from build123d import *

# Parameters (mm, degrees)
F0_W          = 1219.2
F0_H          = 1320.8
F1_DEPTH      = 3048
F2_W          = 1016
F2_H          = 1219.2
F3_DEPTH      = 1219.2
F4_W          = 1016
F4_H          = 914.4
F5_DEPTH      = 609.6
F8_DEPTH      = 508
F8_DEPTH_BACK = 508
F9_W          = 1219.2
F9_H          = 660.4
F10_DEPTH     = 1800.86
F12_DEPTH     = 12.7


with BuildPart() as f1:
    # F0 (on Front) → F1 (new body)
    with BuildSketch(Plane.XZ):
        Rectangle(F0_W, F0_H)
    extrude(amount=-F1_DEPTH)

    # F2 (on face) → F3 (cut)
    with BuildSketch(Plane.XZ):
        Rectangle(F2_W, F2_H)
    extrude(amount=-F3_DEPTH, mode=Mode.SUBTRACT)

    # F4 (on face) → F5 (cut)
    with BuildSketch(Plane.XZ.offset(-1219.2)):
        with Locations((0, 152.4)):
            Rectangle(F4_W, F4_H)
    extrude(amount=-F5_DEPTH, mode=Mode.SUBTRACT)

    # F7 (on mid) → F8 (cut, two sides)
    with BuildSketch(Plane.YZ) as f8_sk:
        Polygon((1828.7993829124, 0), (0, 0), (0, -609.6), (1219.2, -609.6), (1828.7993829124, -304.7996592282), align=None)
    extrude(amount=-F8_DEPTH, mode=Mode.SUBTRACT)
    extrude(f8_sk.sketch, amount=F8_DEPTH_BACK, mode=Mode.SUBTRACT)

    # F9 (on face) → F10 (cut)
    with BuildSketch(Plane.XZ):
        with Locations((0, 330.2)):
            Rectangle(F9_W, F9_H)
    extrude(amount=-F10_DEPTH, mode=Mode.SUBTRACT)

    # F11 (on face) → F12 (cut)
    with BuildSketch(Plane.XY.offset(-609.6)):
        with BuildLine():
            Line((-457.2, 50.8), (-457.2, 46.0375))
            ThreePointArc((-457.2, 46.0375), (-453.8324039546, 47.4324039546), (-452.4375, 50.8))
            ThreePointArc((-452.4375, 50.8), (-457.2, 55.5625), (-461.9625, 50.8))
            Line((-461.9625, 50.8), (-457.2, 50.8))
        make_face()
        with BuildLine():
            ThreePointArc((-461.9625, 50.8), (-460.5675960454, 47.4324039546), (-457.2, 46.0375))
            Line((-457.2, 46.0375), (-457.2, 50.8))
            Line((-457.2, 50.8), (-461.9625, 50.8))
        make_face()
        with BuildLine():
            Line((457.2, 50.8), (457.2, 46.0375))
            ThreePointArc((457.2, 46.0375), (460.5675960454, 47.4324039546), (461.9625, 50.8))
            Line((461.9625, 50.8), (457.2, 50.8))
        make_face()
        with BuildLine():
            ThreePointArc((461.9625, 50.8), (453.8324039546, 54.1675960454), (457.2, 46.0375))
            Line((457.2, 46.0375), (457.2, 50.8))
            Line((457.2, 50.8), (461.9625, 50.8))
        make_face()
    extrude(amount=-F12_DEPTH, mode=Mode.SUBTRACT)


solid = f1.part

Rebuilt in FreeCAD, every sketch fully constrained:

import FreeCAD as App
import Part
import Sketcher
Q = App.Units.Quantity


def add_polygon(sketch, points):
    """Adds a closed chain of lines whose ends are joined by coincident constraints."""
    first, n = sketch.GeometryCount, len(points)
    for a, b in zip(points, points[1:] + points[:1]):
        sketch.addGeometry(Part.LineSegment(App.Vector(*a, 0), App.Vector(*b, 0)), False)
    for i in range(n):
        sketch.addConstraint(Sketcher.Constraint("Coincident", first + i, 2, first + (i + 1) % n, 1))

doc = App.newDocument("Part")
body = doc.addObject("PartDesign::Body", "Body")

# Sketch on XZ plane
sketch1 = doc.addObject("Sketcher::SketchObject", "Sketch")
body.addObject(sketch1)
sketch1.AttachmentSupport = (doc.XZ_Plane, [""])
sketch1.MapMode = "FlatFace"
add_polygon(sketch1, [(-610, 660), (-610, -660), (610, -660), (610, 660)])  # lines 0-3
sketch1.addConstraint([
    Sketcher.Constraint("Vertical", 0),
    Sketcher.Constraint("Horizontal", 1),
    Sketcher.Constraint("Vertical", 2),
    Sketcher.Constraint("Horizontal", 3),
    Sketcher.Constraint("Symmetric", 0, 2, 2, 2, -1, 1),
    Sketcher.Constraint("DistanceX", 1, 1, 1, 2, Q("48 in")),
    Sketcher.Constraint("DistanceY", 0, 2, 0, 1, Q("52 in")),
])
pad1 = doc.addObject("PartDesign::Pad", "Pad")
body.addObject(pad1)
pad1.Profile = sketch1
pad1.Length = Q("120 in")
pad1.Reversed = True

# Sketch on XZ plane
sketch2 = doc.addObject("Sketcher::SketchObject", "Sketch001")
body.addObject(sketch2)
sketch2.AttachmentSupport = (doc.XZ_Plane, [""])
sketch2.MapMode = "FlatFace"
add_polygon(sketch2, [(-508, 610), (-508, -610), (508, -610), (508, 610)])  # lines 0-3
sketch2.addConstraint([
    Sketcher.Constraint("Vertical", 0),
    Sketcher.Constraint("Horizontal", 1),
    Sketcher.Constraint("Vertical", 2),
    Sketcher.Constraint("Horizontal", 3),
    Sketcher.Constraint("Symmetric", 0, 2, 2, 2, -1, 1),
    Sketcher.Constraint("DistanceX", 1, 1, 1, 2, Q("40 in")),
    Sketcher.Constraint("DistanceY", 0, 2, 0, 1, Q("48 in")),
])
pocket1 = doc.addObject("PartDesign::Pocket", "Pocket")
body.addObject(pocket1)
pocket1.Profile = sketch2
pocket1.Length = Q("48 in")

# Sketch on XZ plane
sketch3 = doc.addObject("Sketcher::SketchObject", "Sketch002")
body.addObject(sketch3)
sketch3.AttachmentSupport = (doc.XZ_Plane, [""])
sketch3.MapMode = "FlatFace"
sketch3.AttachmentOffset = App.Placement(App.Vector(0, 0, -48 * 25.4), App.Rotation())
add_polygon(sketch3, [(-508, 610), (-508, -305), (508, -305), (508, 610)])  # lines 0-3
sketch3.addConstraint([
    Sketcher.Constraint("Vertical", 0),
    Sketcher.Constraint("Horizontal", 1),
    Sketcher.Constraint("Vertical", 2),
    Sketcher.Constraint("Horizontal", 3),
    Sketcher.Constraint("DistanceX", 1, 1, 1, 2, Q("40 in")),
    Sketcher.Constraint("DistanceY", 0, 2, 0, 1, Q("36 in")),
    Sketcher.Constraint("DistanceX", 0, 2, -1, 1, Q("20 in")),
    Sketcher.Constraint("DistanceY", 0, 2, -1, 1, Q("12 in")),
])
pocket2 = doc.addObject("PartDesign::Pocket", "Pocket001")
body.addObject(pocket2)
pocket2.Profile = sketch3
pocket2.Length = Q("24 in")

# Sketch on YZ plane
sketch4 = doc.addObject("Sketcher::SketchObject", "Sketch003")
body.addObject(sketch4)
sketch4.AttachmentSupport = (doc.YZ_Plane, [""])
sketch4.MapMode = "FlatFace"
add_polygon(sketch4, [(1829, 0), (0, 0), (0, -610), (1219, -610), (1829, -305)])  # lines 0-4
sketch4.addConstraint([
    Sketcher.Constraint("Horizontal", 0),
    Sketcher.Constraint("Vertical", 1),
    Sketcher.Constraint("Horizontal", 2),
    Sketcher.Constraint("Vertical", 4),
    Sketcher.Constraint("Coincident", 0, 2, -1, 1),
    Sketcher.Constraint("DistanceX", 2, 1, 2, 2, Q("48 in")),
    Sketcher.Constraint("DistanceY", 1, 2, 1, 1, Q("24 in")),
    Sketcher.Constraint("Distance", 3, Q("26.8328 in")),
    Sketcher.Constraint("DistanceY", 4, 1, 4, 2, Q("304.799659 mm")),
])
pocket3 = doc.addObject("PartDesign::Pocket", "Pocket002")
body.addObject(pocket3)
pocket3.Profile = sketch4
pocket3.Type = "TwoLengths"
pocket3.Length = Q("20 in")
pocket3.Length2 = Q("20 in")

# Sketch on XZ plane
sketch5 = doc.addObject("Sketcher::SketchObject", "Sketch004")
body.addObject(sketch5)
sketch5.AttachmentSupport = (doc.XZ_Plane, [""])
sketch5.MapMode = "FlatFace"
add_polygon(sketch5, [(-610, 660), (-610, 0), (610, 0), (610, 660)])  # lines 0-3
sketch5.addConstraint([
    Sketcher.Constraint("Vertical", 0),
    Sketcher.Constraint("Horizontal", 1),
    Sketcher.Constraint("Vertical", 2),
    Sketcher.Constraint("Horizontal", 3),
    Sketcher.Constraint("Symmetric", 0, 2, 1, 2, -1, 1),
    Sketcher.Constraint("DistanceX", 1, 1, 1, 2, Q("48 in")),
    Sketcher.Constraint("DistanceY", 0, 2, 0, 1, Q("26 in")),
])
pocket4 = doc.addObject("PartDesign::Pocket", "Pocket003")
body.addObject(pocket4)
pocket4.Profile = sketch5
pocket4.Length = Q("70.9 in")

# Sketch on XY plane
sketch6 = doc.addObject("Sketcher::SketchObject", "Sketch005")
body.addObject(sketch6)
sketch6.AttachmentSupport = (doc.XY_Plane, [""])
sketch6.MapMode = "FlatFace"
sketch6.AttachmentOffset = App.Placement(App.Vector(0, 0, -24 * 25.4), App.Rotation())
sketch6.addGeometry([
    Part.Circle(App.Vector(-457.2, 50.8, 0), App.Vector(0, 0, 1), 4.8),
    Part.Circle(App.Vector(457.2, 50.8, 0), App.Vector(0, 0, 1), 4.8),
], False)
sketch6.addConstraint([
    Sketcher.Constraint("Equal", 0, 1),
    Sketcher.Constraint("Symmetric", 0, 3, 1, 3, -2),
    Sketcher.Constraint("Diameter", 0, Q("0.375 in")),
    Sketcher.Constraint("DistanceX", 0, 3, -1, 1, Q("18 in")),
    Sketcher.Constraint("DistanceY", -1, 1, 0, 3, Q("2 in")),
])
pocket5 = doc.addObject("PartDesign::Pocket", "Pocket004")
body.addObject(pocket5)
pocket5.Profile = sketch6
pocket5.Length = Q("0.5 in")

doc.recompute()
